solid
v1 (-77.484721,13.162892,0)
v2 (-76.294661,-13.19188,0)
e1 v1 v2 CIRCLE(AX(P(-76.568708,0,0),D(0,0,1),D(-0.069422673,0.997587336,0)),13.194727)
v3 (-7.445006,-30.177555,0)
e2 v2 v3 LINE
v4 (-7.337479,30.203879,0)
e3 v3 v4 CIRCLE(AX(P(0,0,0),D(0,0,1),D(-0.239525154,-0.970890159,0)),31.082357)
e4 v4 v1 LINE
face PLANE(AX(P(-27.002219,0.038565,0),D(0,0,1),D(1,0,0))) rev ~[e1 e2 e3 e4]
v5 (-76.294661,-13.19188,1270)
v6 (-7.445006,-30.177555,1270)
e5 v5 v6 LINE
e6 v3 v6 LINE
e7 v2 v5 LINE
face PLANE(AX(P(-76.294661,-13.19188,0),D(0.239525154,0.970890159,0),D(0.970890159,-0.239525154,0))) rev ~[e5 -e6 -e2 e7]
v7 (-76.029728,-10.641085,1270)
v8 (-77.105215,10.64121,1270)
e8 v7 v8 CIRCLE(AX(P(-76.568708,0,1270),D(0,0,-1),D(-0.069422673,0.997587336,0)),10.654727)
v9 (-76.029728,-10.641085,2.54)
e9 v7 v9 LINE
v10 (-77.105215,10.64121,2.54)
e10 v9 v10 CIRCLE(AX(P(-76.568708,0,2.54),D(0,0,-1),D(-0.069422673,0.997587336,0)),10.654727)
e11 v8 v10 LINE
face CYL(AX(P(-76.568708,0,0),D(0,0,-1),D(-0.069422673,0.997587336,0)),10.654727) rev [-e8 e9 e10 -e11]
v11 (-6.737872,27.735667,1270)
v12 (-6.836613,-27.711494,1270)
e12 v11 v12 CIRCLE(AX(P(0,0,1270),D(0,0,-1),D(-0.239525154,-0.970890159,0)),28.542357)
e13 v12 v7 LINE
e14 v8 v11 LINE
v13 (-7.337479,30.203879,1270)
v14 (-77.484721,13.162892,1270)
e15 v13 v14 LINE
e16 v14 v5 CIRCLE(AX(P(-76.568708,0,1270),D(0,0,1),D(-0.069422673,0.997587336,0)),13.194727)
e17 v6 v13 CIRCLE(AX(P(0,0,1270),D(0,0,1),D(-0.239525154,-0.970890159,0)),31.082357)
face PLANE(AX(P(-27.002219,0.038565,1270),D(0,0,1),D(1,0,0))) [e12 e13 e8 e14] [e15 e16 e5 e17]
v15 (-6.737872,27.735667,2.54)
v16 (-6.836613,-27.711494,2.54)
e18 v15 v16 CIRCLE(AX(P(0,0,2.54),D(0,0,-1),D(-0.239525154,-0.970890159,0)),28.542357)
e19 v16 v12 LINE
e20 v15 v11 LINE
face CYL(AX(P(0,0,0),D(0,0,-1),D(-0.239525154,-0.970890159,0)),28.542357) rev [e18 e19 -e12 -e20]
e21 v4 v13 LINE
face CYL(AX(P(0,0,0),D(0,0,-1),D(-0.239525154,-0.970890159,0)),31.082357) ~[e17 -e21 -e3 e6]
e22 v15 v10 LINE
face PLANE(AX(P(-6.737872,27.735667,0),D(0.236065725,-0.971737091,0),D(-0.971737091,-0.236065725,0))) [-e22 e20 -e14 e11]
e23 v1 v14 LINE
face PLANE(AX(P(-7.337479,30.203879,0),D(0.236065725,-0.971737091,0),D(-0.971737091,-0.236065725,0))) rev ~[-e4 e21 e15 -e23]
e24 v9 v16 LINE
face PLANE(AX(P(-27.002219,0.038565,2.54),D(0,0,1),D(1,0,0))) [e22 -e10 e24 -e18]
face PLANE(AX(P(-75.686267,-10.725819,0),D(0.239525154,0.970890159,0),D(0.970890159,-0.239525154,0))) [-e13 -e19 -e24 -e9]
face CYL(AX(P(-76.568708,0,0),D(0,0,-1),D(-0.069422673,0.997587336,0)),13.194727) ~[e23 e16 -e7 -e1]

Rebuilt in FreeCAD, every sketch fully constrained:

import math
import FreeCAD as App
import Part
import Sketcher
from FreeCAD import Vector
Q = App.Units.Quantity


def faces_at(feature, points):
    """Names of the faces that lie closest to the given points."""
    faces = feature.Shape.Faces
    near = lambda p: min(range(len(faces)), key=lambda i: faces[i].distToShape(Part.Vertex(*p))[0])
    return sorted({f"Face{near(p) + 1}" for p in points})

doc = App.newDocument("Part")
body = doc.addObject("PartDesign::Body", "Body")

# Sketch on XY plane
sketch1 = doc.addObject("Sketcher::SketchObject", "Sketch")
body.addObject(sketch1)
sketch1.AttachmentSupport = (doc.XY_Plane, [""])
sketch1.MapMode = "FlatFace"
sketch1.addGeometry([
    Part.LineSegment(Vector(-76, -13, 0), Vector(-7, -30, 0)),
    Part.ArcOfCircle(Part.Circle(Vector(0, 0, 0), Vector(0, 0, 1), 31), math.radians(-104), math.radians(104)),
    Part.LineSegment(Vector(-7, 30, 0), Vector(-77, 13, 0)),
    Part.ArcOfCircle(Part.Circle(Vector(-77, 0, 0), Vector(0, 0, 1), 13), math.radians(94), math.radians(271)),
], False)
sketch1.addConstraint([
    Sketcher.Constraint("Tangent", 0, 2, 1, 1),
    Sketcher.Constraint("Tangent", 1, 2, 2, 1),
    Sketcher.Constraint("Coincident", 2, 2, 3, 1),
    Sketcher.Constraint("Coincident", 3, 2, 0, 1),
    Sketcher.Constraint("Coincident", 1, 3, -1, 1),
    Sketcher.Constraint("PointOnObject", 3, 3, -1),
    Sketcher.Constraint("Radius", 1, Q("31.082357 mm")),
    Sketcher.Constraint("Radius", 3, Q("13.194727 mm")),
    Sketcher.Constraint("DistanceX", 3, 3, 0, 2, Q("69.123701 mm")),
    Sketcher.Constraint("Distance", 0, Q("70.913948 mm")),
    Sketcher.Constraint("Distance", 2, Q("72.18747 mm")),
])
pad1 = doc.addObject("PartDesign::Pad", "Pad")
body.addObject(pad1)
pad1.Profile = sketch1
pad1.Length = Q("50 in")
doc.recompute()

thickness = doc.addObject("PartDesign::Thickness", "Thickness")
body.addObject(thickness)
thickness.Base = (pad1, faces_at(pad1, [(-29.341, 0, 1270)]))
thickness.Value = Q("0.1 in")
thickness.Reversed = True
thickness.Join = "Intersection"

doc.recompute()
